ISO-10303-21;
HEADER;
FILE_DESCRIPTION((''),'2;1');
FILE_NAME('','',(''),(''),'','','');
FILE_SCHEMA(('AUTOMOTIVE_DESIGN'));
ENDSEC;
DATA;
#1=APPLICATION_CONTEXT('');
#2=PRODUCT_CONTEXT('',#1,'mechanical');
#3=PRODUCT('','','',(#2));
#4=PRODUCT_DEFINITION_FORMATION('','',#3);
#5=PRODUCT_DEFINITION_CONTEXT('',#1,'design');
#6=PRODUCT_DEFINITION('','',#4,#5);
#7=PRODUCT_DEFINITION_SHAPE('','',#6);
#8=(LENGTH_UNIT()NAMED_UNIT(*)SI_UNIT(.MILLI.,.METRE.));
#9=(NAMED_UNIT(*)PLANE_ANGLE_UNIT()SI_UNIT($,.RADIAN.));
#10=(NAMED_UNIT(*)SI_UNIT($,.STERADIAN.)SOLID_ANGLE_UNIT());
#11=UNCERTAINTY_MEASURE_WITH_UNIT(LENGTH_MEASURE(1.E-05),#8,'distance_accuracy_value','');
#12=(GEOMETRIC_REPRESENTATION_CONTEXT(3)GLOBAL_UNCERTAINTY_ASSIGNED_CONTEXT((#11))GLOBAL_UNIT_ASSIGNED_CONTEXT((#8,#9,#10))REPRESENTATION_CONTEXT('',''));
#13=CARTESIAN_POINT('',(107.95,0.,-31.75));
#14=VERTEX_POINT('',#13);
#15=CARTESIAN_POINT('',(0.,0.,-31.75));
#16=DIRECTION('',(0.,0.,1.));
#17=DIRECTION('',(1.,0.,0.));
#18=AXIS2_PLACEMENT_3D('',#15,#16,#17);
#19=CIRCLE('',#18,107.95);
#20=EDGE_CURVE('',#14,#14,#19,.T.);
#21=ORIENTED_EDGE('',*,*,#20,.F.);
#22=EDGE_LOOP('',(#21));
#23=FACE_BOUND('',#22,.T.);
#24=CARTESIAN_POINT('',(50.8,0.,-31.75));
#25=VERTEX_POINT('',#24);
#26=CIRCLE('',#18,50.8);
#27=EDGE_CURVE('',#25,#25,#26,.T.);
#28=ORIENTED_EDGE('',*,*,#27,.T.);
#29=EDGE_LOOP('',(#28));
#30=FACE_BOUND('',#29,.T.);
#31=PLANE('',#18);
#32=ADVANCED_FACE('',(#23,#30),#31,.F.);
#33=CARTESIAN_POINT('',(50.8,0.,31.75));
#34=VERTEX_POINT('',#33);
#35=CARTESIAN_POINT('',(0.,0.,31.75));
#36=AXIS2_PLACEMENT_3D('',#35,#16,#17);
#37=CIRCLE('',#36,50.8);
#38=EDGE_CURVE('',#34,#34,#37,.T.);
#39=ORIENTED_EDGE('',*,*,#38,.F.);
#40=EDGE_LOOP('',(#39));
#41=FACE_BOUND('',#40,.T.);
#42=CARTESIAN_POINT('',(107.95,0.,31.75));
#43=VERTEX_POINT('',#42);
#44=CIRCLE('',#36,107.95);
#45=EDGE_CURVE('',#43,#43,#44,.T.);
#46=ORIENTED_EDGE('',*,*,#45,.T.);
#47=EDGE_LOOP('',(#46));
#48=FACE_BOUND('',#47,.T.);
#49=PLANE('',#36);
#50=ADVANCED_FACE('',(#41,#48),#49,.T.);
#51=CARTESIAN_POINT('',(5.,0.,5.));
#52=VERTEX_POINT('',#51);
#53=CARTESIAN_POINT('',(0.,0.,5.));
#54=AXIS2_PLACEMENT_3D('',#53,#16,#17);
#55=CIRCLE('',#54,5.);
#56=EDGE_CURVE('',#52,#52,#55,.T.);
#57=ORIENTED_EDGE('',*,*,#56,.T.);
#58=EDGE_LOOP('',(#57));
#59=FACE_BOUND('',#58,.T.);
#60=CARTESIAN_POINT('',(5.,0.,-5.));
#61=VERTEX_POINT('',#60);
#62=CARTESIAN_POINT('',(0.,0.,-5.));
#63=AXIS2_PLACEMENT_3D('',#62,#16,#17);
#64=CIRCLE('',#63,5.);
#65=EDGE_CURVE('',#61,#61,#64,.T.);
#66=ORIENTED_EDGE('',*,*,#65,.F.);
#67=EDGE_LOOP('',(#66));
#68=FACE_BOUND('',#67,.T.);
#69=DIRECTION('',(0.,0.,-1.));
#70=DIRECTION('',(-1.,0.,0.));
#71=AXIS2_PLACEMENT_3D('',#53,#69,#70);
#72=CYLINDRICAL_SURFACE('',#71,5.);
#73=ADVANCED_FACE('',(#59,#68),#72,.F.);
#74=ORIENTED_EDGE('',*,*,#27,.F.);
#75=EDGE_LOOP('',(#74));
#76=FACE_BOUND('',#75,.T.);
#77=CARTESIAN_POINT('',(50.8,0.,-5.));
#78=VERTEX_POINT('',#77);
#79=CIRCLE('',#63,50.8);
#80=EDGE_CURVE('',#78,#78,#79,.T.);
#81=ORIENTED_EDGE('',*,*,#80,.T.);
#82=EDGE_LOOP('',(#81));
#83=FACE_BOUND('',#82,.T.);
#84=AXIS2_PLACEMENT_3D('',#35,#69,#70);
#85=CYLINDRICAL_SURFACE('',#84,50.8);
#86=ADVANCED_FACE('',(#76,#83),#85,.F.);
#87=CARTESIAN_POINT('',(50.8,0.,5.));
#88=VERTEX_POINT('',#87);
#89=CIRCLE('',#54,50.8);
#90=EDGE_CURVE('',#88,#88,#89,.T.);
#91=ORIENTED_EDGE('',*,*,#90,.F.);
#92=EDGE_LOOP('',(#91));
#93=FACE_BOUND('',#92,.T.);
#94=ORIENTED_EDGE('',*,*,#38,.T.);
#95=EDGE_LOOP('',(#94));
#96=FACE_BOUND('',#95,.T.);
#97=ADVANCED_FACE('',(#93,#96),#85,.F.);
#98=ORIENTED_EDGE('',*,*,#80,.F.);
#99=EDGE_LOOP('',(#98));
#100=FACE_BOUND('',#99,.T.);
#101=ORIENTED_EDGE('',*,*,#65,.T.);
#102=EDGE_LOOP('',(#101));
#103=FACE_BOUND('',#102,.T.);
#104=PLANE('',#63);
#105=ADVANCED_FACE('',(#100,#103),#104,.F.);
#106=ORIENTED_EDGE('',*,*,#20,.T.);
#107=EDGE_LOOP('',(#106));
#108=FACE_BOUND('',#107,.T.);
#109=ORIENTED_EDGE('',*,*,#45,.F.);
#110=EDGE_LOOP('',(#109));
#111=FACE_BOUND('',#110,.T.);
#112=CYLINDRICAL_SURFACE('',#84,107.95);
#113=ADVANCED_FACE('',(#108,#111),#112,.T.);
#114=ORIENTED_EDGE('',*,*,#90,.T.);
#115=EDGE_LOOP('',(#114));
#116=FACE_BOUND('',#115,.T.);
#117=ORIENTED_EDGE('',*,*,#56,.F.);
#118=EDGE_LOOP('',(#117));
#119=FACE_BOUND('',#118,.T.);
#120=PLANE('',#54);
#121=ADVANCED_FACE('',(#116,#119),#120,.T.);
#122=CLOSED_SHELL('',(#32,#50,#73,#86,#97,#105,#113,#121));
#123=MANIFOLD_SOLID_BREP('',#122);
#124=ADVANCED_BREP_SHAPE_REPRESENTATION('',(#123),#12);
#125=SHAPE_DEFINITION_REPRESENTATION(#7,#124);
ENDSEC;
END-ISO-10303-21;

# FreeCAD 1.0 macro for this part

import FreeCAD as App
import Part
import Sketcher
from FreeCAD import Vector
Q = App.Units.Quantity

doc = App.newDocument("Part")
body = doc.addObject("PartDesign::Body", "Body")

# Sketch on XY plane
sketch1 = body.newObject("Sketcher::SketchObject", "Sketch")
sketch1.AttachmentSupport = (doc.getObject("XY_Plane"), [""])
sketch1.MapMode = "FlatFace"
sketch1.addGeometry(Part.Circle(Vector(0, 0, 0), Vector(0, 0, 1), 107.95), False)
sketch1.addGeometry(Part.Circle(Vector(0, 0, 0), Vector(0, 0, 1), 50.8), False)
sketch1.addConstraint(Sketcher.Constraint("Coincident", 0, 3, -1, 1))
sketch1.addConstraint(Sketcher.Constraint("Coincident", 1, 3, -1, 1))
sketch1.addConstraint(Sketcher.Constraint("Diameter", 1, Q("4 in")))
sketch1.addConstraint(Sketcher.Constraint("Diameter", 0, Q("8.5 in")))
pad1 = body.newObject("PartDesign::Pad", "Pad")
pad1.Profile = sketch1
pad1.Length = Q("2.5 in")
pad1.Midplane = True

# Sketch on XY plane
sketch2 = body.newObject("Sketcher::SketchObject", "Sketch001")
sketch2.AttachmentSupport = (doc.getObject("XY_Plane"), [""])
sketch2.MapMode = "FlatFace"
sketch2.addGeometry(Part.Circle(Vector(0, 0, 0), Vector(0, 0, 1), 50.8), False)
sketch2.addGeometry(Part.Circle(Vector(0, 0, 0), Vector(0, 0, 1), 5), False)
sketch2.addConstraint(Sketcher.Constraint("Coincident", 0, 3, -1, 1))
sketch2.addConstraint(Sketcher.Constraint("Coincident", 1, 3, -1, 1))
sketch2.addConstraint(Sketcher.Constraint("Diameter", 0, Q("4 in")))
sketch2.addConstraint(Sketcher.Constraint("Diameter", 1, Q("10 mm")))
pad2 = body.newObject("PartDesign::Pad", "Pad001")
pad2.Profile = sketch2
pad2.Length = 10
pad2.Midplane = True

doc.recompute()
